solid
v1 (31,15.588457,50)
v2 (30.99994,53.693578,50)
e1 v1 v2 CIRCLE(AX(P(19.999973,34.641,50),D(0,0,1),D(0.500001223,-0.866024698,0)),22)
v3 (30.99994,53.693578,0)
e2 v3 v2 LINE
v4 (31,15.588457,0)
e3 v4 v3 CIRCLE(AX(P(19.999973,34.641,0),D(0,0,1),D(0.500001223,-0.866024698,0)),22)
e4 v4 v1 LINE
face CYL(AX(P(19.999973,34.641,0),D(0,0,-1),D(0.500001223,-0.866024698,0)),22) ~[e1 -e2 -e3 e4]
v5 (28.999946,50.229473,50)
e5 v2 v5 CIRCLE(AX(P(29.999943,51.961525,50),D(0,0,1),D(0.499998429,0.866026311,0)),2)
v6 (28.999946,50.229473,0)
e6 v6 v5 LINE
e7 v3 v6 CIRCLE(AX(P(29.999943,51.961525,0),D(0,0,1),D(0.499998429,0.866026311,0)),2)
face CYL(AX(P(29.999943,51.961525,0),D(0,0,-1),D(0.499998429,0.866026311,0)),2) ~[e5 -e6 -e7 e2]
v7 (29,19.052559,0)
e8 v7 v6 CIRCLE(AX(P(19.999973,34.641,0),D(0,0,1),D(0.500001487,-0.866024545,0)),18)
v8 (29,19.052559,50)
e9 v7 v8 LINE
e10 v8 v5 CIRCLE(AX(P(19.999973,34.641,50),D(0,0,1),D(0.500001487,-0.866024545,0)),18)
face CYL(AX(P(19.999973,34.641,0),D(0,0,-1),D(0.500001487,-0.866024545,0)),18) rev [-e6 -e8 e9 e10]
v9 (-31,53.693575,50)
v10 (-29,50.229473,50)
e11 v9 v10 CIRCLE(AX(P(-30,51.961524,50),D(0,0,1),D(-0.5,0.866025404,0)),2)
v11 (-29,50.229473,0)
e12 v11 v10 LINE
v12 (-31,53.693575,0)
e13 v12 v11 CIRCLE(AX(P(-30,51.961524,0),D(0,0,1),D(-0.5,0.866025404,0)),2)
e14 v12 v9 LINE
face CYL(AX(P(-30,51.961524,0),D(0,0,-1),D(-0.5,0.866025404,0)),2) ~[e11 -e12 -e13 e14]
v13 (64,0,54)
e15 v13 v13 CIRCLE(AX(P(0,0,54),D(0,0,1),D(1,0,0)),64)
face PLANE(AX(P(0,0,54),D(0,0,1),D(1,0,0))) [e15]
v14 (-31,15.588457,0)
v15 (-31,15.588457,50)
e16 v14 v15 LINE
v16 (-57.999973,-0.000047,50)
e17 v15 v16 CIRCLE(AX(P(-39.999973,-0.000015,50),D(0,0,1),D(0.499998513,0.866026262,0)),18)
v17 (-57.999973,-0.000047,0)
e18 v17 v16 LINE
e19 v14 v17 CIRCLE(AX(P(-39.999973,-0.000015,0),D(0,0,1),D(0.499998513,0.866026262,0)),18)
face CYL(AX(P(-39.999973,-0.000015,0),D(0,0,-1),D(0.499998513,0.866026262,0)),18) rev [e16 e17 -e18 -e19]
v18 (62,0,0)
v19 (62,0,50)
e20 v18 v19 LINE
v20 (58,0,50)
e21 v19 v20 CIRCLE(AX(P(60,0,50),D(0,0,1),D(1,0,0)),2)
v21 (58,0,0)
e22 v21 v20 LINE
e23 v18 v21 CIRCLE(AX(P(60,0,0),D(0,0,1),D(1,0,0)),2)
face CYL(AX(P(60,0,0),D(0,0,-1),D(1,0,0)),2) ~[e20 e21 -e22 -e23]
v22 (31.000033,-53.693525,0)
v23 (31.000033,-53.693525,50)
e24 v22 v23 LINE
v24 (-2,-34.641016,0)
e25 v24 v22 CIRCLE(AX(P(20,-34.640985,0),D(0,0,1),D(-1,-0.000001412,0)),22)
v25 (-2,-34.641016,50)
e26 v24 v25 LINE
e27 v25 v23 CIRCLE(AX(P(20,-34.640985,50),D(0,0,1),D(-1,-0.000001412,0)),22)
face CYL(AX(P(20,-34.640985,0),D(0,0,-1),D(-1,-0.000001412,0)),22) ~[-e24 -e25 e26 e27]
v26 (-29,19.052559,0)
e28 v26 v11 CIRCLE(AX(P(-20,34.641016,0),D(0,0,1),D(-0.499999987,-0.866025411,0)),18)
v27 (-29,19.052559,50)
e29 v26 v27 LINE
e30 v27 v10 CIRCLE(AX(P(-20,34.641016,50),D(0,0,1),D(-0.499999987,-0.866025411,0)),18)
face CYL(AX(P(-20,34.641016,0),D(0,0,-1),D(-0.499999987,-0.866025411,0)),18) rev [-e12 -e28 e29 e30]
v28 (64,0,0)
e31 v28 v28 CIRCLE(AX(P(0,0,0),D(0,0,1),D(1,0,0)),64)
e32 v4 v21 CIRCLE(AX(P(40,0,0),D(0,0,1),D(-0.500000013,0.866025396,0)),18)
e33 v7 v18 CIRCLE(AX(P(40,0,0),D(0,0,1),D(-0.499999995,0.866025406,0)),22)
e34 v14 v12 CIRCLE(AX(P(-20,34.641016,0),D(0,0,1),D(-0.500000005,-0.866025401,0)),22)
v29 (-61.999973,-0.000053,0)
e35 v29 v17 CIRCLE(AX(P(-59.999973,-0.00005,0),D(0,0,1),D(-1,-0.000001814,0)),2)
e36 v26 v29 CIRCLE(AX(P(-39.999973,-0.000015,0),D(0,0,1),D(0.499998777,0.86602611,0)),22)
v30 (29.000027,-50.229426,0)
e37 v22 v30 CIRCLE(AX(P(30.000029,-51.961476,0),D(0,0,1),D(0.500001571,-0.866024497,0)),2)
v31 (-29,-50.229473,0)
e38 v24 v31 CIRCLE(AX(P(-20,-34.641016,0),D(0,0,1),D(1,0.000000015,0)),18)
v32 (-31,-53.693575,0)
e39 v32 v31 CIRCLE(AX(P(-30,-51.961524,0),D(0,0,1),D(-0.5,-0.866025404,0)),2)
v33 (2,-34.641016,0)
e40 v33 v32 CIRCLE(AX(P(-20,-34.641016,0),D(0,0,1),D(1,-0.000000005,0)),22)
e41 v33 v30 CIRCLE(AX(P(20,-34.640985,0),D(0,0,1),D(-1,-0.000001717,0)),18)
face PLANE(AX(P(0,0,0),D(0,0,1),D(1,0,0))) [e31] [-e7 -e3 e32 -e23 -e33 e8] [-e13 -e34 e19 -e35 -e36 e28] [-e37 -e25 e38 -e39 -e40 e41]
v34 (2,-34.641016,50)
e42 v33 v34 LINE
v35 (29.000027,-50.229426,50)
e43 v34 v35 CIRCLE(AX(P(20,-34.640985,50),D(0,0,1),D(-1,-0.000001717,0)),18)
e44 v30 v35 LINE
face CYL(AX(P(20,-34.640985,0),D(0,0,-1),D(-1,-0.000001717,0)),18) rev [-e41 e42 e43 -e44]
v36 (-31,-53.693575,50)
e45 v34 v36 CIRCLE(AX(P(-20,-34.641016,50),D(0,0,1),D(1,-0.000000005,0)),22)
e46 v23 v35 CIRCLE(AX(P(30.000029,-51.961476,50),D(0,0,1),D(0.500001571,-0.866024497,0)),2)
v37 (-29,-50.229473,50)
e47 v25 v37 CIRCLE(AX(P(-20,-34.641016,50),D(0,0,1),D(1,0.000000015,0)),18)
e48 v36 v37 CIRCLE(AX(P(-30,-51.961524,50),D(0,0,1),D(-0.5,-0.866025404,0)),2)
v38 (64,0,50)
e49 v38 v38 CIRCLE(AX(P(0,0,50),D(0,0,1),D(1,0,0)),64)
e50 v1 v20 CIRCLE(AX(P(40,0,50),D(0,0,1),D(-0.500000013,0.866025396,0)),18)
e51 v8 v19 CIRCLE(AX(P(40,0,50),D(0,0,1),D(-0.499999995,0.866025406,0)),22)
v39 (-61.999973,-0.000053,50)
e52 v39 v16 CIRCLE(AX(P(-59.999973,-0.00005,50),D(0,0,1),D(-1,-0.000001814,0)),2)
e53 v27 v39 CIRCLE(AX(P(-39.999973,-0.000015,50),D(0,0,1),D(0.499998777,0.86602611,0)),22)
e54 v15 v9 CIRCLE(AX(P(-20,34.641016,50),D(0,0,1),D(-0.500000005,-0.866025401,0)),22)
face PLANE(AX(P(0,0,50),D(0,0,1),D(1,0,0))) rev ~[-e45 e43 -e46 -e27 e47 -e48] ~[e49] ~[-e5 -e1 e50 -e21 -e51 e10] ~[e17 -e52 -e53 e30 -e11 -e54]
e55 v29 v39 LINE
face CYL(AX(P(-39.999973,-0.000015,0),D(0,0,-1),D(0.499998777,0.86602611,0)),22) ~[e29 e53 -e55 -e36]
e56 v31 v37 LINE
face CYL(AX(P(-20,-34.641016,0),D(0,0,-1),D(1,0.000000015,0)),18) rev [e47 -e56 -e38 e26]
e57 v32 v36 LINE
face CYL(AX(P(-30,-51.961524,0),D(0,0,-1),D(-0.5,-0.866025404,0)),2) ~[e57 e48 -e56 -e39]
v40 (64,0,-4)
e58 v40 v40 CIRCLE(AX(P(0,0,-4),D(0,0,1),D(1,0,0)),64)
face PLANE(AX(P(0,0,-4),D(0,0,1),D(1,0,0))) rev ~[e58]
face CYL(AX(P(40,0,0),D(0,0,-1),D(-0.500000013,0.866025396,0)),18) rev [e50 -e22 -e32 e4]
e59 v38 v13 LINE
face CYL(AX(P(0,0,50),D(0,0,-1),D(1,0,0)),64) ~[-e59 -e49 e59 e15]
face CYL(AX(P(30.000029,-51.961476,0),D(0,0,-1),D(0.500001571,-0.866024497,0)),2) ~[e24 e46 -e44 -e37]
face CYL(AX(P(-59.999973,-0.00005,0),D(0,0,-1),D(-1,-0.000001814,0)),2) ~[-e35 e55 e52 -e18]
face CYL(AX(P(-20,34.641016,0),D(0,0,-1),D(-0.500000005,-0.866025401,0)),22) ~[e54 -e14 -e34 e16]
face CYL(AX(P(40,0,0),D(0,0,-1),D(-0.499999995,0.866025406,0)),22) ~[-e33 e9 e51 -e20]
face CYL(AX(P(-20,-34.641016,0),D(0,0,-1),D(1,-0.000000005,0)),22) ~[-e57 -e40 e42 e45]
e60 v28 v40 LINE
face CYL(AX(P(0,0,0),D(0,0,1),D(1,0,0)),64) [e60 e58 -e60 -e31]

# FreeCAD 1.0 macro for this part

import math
import FreeCAD as App
import Part
import Sketcher

V = App.Vector
Q = App.Units.Quantity

doc = App.newDocument("Part")
body = doc.addObject("PartDesign::Body", "Body")

# Sketch on XY plane
sketch1 = body.newObject("Sketcher::SketchObject", "Sketch")
sketch1.AttachmentSupport = (doc.getObject("XY_Plane"), [""])
sketch1.MapMode = "FlatFace"
sketch1.addGeometry(Part.Circle(V(0, 0, 0), V(0, 0, 1), 64), False)
sketch1.addConstraint([
    Sketcher.Constraint("Coincident", 0, 3, -1, 1),
    Sketcher.Constraint("Diameter", 0, Q("128 mm")),
])
pad1 = body.newObject("PartDesign::Pad", "Pad")
pad1.Profile = sketch1
pad1.Length = 4
pad1.Reversed = True

# Sketch on XY plane
sketch2 = body.newObject("Sketcher::SketchObject", "Sketch001")
sketch2.AttachmentSupport = (doc.getObject("XY_Plane"), [""])
sketch2.MapMode = "FlatFace"
sketch2.addGeometry([
    Part.ArcOfCircle(Part.Circle(V(40, 0, 0), V(0, 0, 1), 22), math.radians(120), math.radians(360)),  # 0
    Part.ArcOfCircle(Part.Circle(V(60, 0, 0), V(0, 0, 1), 2), math.radians(0), math.radians(180)),  # 1
    Part.ArcOfCircle(Part.Circle(V(40, 0, 0), V(0, 0, 1), 18), math.radians(120.000001), math.radians(360)),  # 2
    Part.ArcOfCircle(Part.Circle(V(19.999973, 34.641, 0), V(0, 0, 1), 22), math.radians(-59.999919), math.radians(60.0001)),  # 3
    Part.ArcOfCircle(Part.Circle(V(29.999943, 51.961525, 0), V(0, 0, 1), 2), math.radians(60.000104), math.radians(240.000093)),  # 4
    Part.ArcOfCircle(Part.Circle(V(19.999973, 34.641, 0), V(0, 0, 1), 18), math.radians(-59.999902), math.radians(60.0001)),  # 5
], False)
sketch2.addConstraint([
    Sketcher.Constraint("Coincident", 0, 2, 1, 1),
    Sketcher.Constraint("Coincident", 1, 2, 2, 2),
    Sketcher.Constraint("Coincident", 2, 1, 3, 1),
    Sketcher.Constraint("Coincident", 3, 2, 4, 1),
    Sketcher.Constraint("Coincident", 4, 2, 5, 2),
    Sketcher.Constraint("Coincident", 5, 1, 0, 1),
    Sketcher.Constraint("Coincident", 2, 3, 0, 3),
    Sketcher.Constraint("Coincident", 5, 3, 3, 3),
    Sketcher.Constraint("PointOnObject", 0, 3, -1),
    Sketcher.Constraint("PointOnObject", 1, 3, -1),
    Sketcher.Constraint("PointOnObject", 0, 2, -1),
    Sketcher.Constraint("PointOnObject", 1, 2, -1),
    Sketcher.Constraint("Radius", 0, Q("22 mm")),
    Sketcher.Constraint("Radius", 1, Q("2 mm")),
    Sketcher.Constraint("Radius", 3, Q("22 mm")),
    Sketcher.Constraint("DistanceX", -1, 1, 0, 3, Q("40 mm")),
    Sketcher.Constraint("DistanceX", -1, 1, 2, 1, Q("31 mm")),
    Sketcher.Constraint("DistanceX", -1, 1, 5, 1, Q("29 mm")),
    Sketcher.Constraint("DistanceY", -1, 1, 3, 3, Q("34.641 mm")),
    Sketcher.Constraint("DistanceX", -1, 1, 3, 2, Q("30.99994 mm")),
    Sketcher.Constraint("DistanceX", 3, 3, 4, 3, Q("9.99997 mm")),
    Sketcher.Constraint("DistanceX", -1, 1, 4, 2, Q("28.999946 mm")),
])
pad2 = body.newObject("PartDesign::Pad", "Pad001")
pad2.Profile = sketch2
pad2.Length = 50
doc.recompute()

polarpattern = body.newObject("PartDesign::PolarPattern", "PolarPattern")
polarpattern.Originals = [pad2]
polarpattern.Axis = (doc.getObject("Z_Axis"), [""])
polarpattern.Angle = 360
polarpattern.Occurrences = 3
body.Tip = polarpattern

# Sketch on XY plane
sketch3 = body.newObject("Sketcher::SketchObject", "Sketch002")
sketch3.AttachmentSupport = (doc.getObject("XY_Plane"), [""])
sketch3.MapMode = "FlatFace"
sketch3.AttachmentOffset = App.Placement(V(0, 0, 50), App.Rotation())
sketch3.addGeometry(Part.Circle(V(0, 0, 0), V(0, 0, 1), 64), False)
sketch3.addConstraint([
    Sketcher.Constraint("Coincident", 0, 3, -1, 1),
    Sketcher.Constraint("Diameter", 0, Q("128 mm")),
])
pad3 = body.newObject("PartDesign::Pad", "Pad002")
pad3.Profile = sketch3
pad3.Length = 4

doc.recompute()
